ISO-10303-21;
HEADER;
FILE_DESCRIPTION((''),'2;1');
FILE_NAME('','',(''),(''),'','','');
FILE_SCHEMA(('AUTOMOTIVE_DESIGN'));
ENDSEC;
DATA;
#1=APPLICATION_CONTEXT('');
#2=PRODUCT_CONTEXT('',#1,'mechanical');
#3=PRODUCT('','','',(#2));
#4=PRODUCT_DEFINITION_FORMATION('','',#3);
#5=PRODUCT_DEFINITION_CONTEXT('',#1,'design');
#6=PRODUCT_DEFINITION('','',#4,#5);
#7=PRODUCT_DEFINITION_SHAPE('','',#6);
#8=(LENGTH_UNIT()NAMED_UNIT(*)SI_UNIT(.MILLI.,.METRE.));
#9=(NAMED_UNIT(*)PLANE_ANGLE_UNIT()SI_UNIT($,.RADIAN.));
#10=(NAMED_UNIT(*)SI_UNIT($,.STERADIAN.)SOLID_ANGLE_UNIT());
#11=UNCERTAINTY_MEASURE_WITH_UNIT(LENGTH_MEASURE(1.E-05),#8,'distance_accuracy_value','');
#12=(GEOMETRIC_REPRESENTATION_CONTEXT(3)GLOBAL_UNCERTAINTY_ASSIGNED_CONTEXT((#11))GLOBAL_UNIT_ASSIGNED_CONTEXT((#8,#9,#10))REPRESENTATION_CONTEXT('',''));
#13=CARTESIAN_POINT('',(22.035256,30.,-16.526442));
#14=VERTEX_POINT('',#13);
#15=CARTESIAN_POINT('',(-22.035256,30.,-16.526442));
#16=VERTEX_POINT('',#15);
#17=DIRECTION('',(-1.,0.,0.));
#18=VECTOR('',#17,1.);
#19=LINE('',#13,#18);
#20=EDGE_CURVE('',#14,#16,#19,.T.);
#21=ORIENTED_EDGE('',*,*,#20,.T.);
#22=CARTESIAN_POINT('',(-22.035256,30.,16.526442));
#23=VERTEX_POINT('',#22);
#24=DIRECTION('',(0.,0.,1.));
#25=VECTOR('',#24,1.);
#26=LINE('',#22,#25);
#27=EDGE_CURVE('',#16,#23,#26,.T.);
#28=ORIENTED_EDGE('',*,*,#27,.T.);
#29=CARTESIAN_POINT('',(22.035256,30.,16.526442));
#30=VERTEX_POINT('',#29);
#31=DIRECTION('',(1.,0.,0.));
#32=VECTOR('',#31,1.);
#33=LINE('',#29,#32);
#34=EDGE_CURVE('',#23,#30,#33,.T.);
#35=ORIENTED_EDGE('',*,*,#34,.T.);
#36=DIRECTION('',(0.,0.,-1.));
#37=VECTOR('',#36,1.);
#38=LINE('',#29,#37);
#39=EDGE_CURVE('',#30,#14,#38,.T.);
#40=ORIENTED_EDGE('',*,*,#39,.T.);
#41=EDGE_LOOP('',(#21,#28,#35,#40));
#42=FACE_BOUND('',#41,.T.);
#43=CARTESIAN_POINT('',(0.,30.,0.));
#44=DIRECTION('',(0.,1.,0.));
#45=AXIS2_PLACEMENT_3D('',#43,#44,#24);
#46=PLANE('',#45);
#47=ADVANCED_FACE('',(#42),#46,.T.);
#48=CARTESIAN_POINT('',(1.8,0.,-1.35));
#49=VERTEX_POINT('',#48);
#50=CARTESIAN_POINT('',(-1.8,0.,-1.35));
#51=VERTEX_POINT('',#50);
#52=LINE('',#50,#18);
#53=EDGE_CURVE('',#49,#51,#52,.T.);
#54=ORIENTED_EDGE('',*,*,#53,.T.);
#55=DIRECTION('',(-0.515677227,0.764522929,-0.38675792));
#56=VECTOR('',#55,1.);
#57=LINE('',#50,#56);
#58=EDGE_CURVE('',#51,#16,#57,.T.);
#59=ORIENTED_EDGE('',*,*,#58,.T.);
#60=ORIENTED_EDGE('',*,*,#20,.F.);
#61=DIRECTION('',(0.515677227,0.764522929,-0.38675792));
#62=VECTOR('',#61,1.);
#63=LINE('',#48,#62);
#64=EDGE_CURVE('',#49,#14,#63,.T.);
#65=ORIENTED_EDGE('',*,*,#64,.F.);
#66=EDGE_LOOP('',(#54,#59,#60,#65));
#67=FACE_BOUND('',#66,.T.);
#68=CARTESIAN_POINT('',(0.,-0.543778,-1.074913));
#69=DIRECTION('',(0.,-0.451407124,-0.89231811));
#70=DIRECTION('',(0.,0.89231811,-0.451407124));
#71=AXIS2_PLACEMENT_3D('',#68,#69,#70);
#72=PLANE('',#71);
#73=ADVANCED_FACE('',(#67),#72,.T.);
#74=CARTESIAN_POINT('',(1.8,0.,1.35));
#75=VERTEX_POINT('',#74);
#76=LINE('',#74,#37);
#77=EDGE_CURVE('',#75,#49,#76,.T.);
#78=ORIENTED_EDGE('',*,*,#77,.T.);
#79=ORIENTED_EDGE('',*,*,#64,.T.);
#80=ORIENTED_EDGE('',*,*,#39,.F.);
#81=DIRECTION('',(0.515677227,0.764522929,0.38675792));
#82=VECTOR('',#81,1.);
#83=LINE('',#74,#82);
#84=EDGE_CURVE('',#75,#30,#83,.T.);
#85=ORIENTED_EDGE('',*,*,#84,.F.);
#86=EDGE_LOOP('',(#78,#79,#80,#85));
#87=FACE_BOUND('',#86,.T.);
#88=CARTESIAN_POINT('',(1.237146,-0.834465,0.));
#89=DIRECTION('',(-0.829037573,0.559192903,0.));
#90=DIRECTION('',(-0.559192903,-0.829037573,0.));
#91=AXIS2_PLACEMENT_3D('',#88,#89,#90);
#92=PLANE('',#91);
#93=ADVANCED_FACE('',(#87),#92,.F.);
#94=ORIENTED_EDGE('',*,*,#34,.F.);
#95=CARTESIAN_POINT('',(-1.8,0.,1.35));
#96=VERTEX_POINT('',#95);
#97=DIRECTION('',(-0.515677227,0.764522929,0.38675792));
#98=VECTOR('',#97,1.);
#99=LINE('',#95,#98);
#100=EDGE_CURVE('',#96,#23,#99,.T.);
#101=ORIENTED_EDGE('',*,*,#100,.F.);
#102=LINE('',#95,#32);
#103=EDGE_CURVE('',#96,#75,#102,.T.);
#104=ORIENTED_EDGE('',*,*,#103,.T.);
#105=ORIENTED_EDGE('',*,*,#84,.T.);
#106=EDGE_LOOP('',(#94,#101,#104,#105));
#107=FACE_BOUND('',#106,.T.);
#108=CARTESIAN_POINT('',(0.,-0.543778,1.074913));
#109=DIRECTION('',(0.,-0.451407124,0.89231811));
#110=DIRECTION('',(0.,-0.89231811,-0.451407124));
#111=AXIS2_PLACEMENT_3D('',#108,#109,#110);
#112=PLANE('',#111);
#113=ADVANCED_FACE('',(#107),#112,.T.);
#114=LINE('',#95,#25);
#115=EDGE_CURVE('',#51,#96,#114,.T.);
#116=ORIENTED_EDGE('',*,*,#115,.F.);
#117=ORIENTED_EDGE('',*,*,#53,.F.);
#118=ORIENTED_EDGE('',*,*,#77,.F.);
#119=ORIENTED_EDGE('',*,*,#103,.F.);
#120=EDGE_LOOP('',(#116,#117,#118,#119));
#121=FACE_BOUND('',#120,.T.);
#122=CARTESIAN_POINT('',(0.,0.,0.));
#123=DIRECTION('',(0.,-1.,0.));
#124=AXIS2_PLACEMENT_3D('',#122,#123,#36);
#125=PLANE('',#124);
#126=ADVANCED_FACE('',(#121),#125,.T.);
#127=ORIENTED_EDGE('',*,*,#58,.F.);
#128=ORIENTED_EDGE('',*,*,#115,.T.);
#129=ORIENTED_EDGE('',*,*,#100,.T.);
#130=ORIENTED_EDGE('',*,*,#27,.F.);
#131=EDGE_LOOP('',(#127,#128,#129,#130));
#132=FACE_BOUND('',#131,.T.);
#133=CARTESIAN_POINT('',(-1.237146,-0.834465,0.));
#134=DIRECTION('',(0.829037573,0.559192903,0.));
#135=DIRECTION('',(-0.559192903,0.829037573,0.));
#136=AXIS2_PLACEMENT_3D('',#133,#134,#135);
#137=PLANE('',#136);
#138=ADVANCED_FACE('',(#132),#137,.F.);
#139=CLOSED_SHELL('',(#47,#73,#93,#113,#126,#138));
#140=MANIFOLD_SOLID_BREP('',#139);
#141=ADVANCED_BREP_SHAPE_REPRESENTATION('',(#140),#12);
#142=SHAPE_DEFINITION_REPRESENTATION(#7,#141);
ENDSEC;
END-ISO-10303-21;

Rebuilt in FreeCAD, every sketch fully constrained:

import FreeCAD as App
import Part
import Sketcher


def add_polygon(sketch, points):
    """Adds a closed chain of lines whose ends are joined by coincident constraints."""
    first, n = sketch.GeometryCount, len(points)
    for a, b in zip(points, points[1:] + points[:1]):
        sketch.addGeometry(Part.LineSegment(App.Vector(*a, 0), App.Vector(*b, 0)), False)
    for i in range(n):
        sketch.addConstraint(Sketcher.Constraint("Coincident", first + i, 2, first + (i + 1) % n, 1))

doc = App.newDocument("Part")
body = doc.addObject("PartDesign::Body", "Body")

sketch1 = body.newObject("Sketcher::SketchObject", "Sketch")
sketch1.AttachmentSupport = (doc.getObject("XZ_Plane"), [""])
sketch1.MapMode = "FlatFace"
add_polygon(sketch1, [(-1.8, 1.35), (1.8, 1.35), (1.8, -1.35), (-1.8, -1.35)])
sketch1.addConstraint(Sketcher.Constraint("Horizontal", 0))
sketch1.addConstraint(Sketcher.Constraint("Vertical", 1))
sketch1.addConstraint(Sketcher.Constraint("Horizontal", 2))
sketch1.addConstraint(Sketcher.Constraint("Vertical", 3))
sketch1.addConstraint(Sketcher.Constraint("Symmetric", 0, 2, 2, 2, -1, 1))
sketch1.addConstraint(Sketcher.Constraint("DistanceX", 0, 1, 0, 2, 3.6))
sketch1.addConstraint(Sketcher.Constraint("DistanceY", 1, 2, 1, 1, 2.7))

sketch2 = body.newObject("Sketcher::SketchObject", "Sketch001")
sketch2.AttachmentSupport = (doc.getObject("XZ_Plane"), [""])
sketch2.MapMode = "FlatFace"
sketch2.AttachmentOffset = App.Placement(App.Vector(0, 0, -30), App.Rotation())
add_polygon(sketch2, [(-22.035256, 16.526442), (22.035256, 16.526442), (22.035256, -16.526442), (-22.035256, -16.526442)])
sketch2.addConstraint(Sketcher.Constraint("Horizontal", 0))
sketch2.addConstraint(Sketcher.Constraint("Vertical", 1))
sketch2.addConstraint(Sketcher.Constraint("Horizontal", 2))
sketch2.addConstraint(Sketcher.Constraint("Vertical", 3))
sketch2.addConstraint(Sketcher.Constraint("Symmetric", 0, 2, 2, 2, -1, 1))
sketch2.addConstraint(Sketcher.Constraint("DistanceX", 0, 1, 0, 2, 44.070511))
sketch2.addConstraint(Sketcher.Constraint("DistanceY", 1, 2, 1, 1, 33.052883))

additiveloft = body.newObject("PartDesign::AdditiveLoft", "AdditiveLoft")
additiveloft.Profile = sketch1
additiveloft.Sections = [sketch2]

doc.recompute()
